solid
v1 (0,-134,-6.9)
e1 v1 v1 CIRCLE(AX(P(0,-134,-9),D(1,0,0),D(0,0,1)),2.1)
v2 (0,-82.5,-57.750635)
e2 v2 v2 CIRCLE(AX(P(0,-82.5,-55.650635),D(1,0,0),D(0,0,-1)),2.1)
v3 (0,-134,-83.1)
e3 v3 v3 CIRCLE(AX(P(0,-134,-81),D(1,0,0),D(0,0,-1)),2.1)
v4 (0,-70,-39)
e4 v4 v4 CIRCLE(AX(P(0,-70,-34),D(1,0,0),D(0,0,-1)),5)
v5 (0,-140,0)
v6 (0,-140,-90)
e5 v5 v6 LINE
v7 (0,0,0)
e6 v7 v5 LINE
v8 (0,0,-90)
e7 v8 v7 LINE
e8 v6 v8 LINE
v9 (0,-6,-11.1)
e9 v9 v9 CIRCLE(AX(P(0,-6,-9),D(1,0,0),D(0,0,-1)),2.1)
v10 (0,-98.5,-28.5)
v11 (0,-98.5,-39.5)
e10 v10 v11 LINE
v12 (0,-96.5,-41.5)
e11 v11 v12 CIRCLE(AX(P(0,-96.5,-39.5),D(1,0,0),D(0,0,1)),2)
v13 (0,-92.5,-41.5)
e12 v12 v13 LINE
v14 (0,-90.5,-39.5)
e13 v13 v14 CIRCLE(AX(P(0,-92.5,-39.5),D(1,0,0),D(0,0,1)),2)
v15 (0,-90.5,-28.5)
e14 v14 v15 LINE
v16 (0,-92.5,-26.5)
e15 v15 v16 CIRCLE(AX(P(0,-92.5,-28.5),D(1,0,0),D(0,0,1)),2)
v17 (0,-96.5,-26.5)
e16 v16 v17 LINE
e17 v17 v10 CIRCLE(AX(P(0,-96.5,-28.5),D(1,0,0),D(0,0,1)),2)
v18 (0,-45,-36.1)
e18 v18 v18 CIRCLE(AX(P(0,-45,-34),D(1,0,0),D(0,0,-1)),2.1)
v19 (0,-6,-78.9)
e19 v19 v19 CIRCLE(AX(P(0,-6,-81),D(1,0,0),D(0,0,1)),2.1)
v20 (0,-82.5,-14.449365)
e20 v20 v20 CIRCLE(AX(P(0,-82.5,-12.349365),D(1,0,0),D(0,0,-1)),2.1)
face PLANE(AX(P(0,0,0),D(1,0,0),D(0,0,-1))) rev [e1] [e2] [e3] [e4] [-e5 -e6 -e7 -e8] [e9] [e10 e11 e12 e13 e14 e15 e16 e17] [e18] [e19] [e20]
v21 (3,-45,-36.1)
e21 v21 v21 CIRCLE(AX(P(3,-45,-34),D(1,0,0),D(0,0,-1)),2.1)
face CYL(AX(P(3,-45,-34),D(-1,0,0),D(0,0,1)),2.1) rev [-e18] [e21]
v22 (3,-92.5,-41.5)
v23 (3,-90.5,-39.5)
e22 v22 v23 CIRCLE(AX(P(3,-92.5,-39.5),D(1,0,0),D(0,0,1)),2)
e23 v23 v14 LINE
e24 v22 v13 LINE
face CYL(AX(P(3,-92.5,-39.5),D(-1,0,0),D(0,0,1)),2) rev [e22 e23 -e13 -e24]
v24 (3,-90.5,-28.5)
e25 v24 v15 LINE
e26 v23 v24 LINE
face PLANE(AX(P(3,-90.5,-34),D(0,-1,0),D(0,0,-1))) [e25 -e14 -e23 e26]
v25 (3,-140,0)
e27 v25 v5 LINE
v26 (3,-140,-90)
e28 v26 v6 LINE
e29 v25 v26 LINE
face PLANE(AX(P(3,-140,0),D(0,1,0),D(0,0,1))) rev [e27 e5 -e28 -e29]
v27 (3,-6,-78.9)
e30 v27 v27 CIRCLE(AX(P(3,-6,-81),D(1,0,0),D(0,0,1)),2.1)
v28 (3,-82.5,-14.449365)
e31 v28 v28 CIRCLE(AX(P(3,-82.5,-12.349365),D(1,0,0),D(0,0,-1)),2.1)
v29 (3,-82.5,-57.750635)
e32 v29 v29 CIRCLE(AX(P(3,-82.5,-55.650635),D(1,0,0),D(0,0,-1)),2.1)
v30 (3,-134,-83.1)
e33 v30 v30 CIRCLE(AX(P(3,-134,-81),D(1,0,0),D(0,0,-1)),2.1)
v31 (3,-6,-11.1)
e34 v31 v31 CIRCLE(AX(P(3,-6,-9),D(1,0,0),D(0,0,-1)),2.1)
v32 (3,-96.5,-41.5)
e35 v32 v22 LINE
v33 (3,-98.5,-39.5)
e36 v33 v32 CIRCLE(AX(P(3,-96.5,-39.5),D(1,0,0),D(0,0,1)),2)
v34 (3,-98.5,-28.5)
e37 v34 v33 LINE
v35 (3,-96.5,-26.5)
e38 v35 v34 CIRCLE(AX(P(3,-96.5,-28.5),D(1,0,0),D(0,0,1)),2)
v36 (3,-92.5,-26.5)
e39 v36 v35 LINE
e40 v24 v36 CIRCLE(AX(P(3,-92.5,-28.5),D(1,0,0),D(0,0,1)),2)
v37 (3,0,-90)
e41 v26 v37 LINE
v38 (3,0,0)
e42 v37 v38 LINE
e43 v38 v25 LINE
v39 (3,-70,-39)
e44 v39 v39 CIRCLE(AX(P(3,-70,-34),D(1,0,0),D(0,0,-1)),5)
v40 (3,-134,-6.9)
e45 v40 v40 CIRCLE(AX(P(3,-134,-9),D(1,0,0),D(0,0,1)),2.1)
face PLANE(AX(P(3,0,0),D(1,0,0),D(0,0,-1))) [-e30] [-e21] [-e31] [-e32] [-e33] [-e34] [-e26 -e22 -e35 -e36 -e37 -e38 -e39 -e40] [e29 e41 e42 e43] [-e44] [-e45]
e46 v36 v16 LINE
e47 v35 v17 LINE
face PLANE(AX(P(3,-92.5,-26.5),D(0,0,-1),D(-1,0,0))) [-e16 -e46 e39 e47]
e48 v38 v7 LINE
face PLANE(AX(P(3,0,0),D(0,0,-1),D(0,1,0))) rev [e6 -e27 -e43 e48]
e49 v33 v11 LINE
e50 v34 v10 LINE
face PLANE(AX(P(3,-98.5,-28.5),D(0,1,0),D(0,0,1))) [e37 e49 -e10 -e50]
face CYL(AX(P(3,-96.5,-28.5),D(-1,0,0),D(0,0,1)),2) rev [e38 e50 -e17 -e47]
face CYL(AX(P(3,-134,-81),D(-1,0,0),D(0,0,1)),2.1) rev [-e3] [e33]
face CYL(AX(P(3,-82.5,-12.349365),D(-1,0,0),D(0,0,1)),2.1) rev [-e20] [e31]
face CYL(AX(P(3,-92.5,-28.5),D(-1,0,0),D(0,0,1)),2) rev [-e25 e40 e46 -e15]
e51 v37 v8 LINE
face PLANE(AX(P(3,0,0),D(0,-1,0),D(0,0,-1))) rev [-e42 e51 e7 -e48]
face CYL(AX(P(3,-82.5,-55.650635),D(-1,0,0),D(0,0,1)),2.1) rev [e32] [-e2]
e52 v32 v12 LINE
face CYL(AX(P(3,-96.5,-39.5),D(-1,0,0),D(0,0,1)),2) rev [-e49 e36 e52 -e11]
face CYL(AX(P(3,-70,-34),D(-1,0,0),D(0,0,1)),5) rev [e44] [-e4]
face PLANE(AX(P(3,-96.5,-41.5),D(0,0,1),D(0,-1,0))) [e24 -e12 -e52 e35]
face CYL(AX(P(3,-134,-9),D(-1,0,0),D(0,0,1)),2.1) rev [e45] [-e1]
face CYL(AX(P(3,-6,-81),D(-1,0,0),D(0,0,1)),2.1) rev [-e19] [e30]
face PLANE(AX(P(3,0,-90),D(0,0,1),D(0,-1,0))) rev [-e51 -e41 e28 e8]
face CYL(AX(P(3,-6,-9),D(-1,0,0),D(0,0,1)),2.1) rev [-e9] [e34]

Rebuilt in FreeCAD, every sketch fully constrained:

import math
import FreeCAD as App
import Part
import Sketcher
Q = App.Units.Quantity


def add_polygon(sketch, points):
    """Adds a closed chain of lines whose ends are joined by coincident constraints."""
    first, n = sketch.GeometryCount, len(points)
    for a, b in zip(points, points[1:] + points[:1]):
        sketch.addGeometry(Part.LineSegment(App.Vector(*a, 0), App.Vector(*b, 0)), False)
    for i in range(n):
        sketch.addConstraint(Sketcher.Constraint("Coincident", first + i, 2, first + (i + 1) % n, 1))

doc = App.newDocument("Part")
body = doc.addObject("PartDesign::Body", "Body")

# Sketch on YZ plane
sketch1 = body.newObject("Sketcher::SketchObject", "Sketch")
sketch1.AttachmentSupport = (doc.getObject("YZ_Plane"), [""])
sketch1.MapMode = "FlatFace"
add_polygon(sketch1, [(0, 0), (-140, 0), (-140, -90), (0, -90)])  # lines 0-3
sketch1.addGeometry(Part.Circle(App.Vector(-134, -9, 0), App.Vector(0, 0, 1), 2.1), False)  # 4
sketch1.addGeometry(Part.Circle(App.Vector(-82.5, -12.3, 0), App.Vector(0, 0, 1), 2.1), False)  # 5
sketch1.addGeometry(Part.ArcOfCircle(Part.Circle(App.Vector(-92.5, -28.5, 0), App.Vector(0, 0, 1), 2), math.radians(0), math.radians(90)), False)  # 6
sketch1.addGeometry(Part.LineSegment(App.Vector(-90.5, -28.5, 0), App.Vector(-90.5, -39.5, 0)), False)  # 7
sketch1.addGeometry(Part.ArcOfCircle(Part.Circle(App.Vector(-92.5, -39.5, 0), App.Vector(0, 0, 1), 2), math.radians(-90), math.radians(0)), False)  # 8
sketch1.addGeometry(Part.LineSegment(App.Vector(-92.5, -41.5, 0), App.Vector(-96.5, -41.5, 0)), False)  # 9
sketch1.addGeometry(Part.ArcOfCircle(Part.Circle(App.Vector(-96.5, -39.5, 0), App.Vector(0, 0, 1), 2), math.radians(-180), math.radians(-90)), False)  # 10
sketch1.addGeometry(Part.LineSegment(App.Vector(-98.5, -39.5, 0), App.Vector(-98.5, -28.5, 0)), False)  # 11
sketch1.addGeometry(Part.ArcOfCircle(Part.Circle(App.Vector(-96.5, -28.5, 0), App.Vector(0, 0, 1), 2), math.radians(90), math.radians(180)), False)  # 12
sketch1.addGeometry(Part.LineSegment(App.Vector(-96.5, -26.5, 0), App.Vector(-92.5, -26.5, 0)), False)  # 13
sketch1.addGeometry(Part.Circle(App.Vector(-134, -81, 0), App.Vector(0, 0, 1), 2.1), False)  # 14
sketch1.addGeometry(Part.Circle(App.Vector(-82.5, -55.7, 0), App.Vector(0, 0, 1), 2.1), False)  # 15
sketch1.addGeometry(Part.Circle(App.Vector(-70, -34, 0), App.Vector(0, 0, 1), 5), False)  # 16
sketch1.addGeometry(Part.Circle(App.Vector(-45, -34, 0), App.Vector(0, 0, 1), 2.1), False)  # 17
sketch1.addGeometry(Part.Circle(App.Vector(-6, -9, 0), App.Vector(0, 0, 1), 2.1), False)  # 18
sketch1.addGeometry(Part.Circle(App.Vector(-6, -81, 0), App.Vector(0, 0, 1), 2.1), False)  # 19
sketch1.addConstraint([
    Sketcher.Constraint("Tangent", 6, 1, 7, 1),
    Sketcher.Constraint("Tangent", 7, 2, 8, 2),
    Sketcher.Constraint("Tangent", 8, 1, 9, 1),
    Sketcher.Constraint("Tangent", 9, 2, 10, 2),
    Sketcher.Constraint("Tangent", 10, 1, 11, 1),
    Sketcher.Constraint("Tangent", 11, 2, 12, 2),
    Sketcher.Constraint("Tangent", 12, 1, 13, 1),
    Sketcher.Constraint("Tangent", 13, 2, 6, 2),
    Sketcher.Constraint("Horizontal", 0),
    Sketcher.Constraint("Vertical", 1),
    Sketcher.Constraint("Horizontal", 2),
    Sketcher.Constraint("Vertical", 3),
    Sketcher.Constraint("Vertical", 7),
    Sketcher.Constraint("Horizontal", 9),
    Sketcher.Constraint("Vertical", 11),
    Sketcher.Constraint("Horizontal", 13),
    Sketcher.Constraint("Coincident", 3, 2, -1, 1),
    Sketcher.Constraint("Equal", 4, 5),
    Sketcher.Constraint("Equal", 6, 8),
    Sketcher.Constraint("Equal", 8, 10),
    Sketcher.Constraint("Equal", 10, 12),
    Sketcher.Constraint("Equal", 5, 14),
    Sketcher.Constraint("Equal", 14, 15),
    Sketcher.Constraint("Equal", 15, 17),
    Sketcher.Constraint("Equal", 17, 18),
    Sketcher.Constraint("Equal", 18, 19),
    Sketcher.Constraint("Horizontal", 16, 3, 17, 3),
    Sketcher.Constraint("Horizontal", 4, 3, 18, 3),
    Sketcher.Constraint("Horizontal", 14, 3, 19, 3),
    Sketcher.Constraint("Vertical", 4, 3, 14, 3),
    Sketcher.Constraint("Vertical", 5, 3, 15, 3),
    Sketcher.Constraint("Vertical", 18, 3, 19, 3),
    Sketcher.Constraint("Diameter", 16, Q("10 mm")),
    Sketcher.Constraint("Radius", 6, Q("2 mm")),
    Sketcher.Constraint("Diameter", 4, Q("4.2 mm")),
    Sketcher.Constraint("DistanceX", 0, 2, 0, 1, Q("140 mm")),
    Sketcher.Constraint("DistanceX", 9, 2, 9, 1, Q("4 mm")),
    Sketcher.Constraint("DistanceY", 1, 2, 1, 1, Q("90 mm")),
    Sketcher.Constraint("DistanceY", 7, 2, 7, 1, Q("11 mm")),
    Sketcher.Constraint("DistanceX", 4, 3, -1, 1, Q("134 mm")),
    Sketcher.Constraint("DistanceY", 4, 3, -1, 1, Q("9 mm")),
    Sketcher.Constraint("DistanceY", 14, 3, -1, 1, Q("81 mm")),
    Sketcher.Constraint("DistanceX", 16, 3, -1, 1, Q("70 mm")),
    Sketcher.Constraint("DistanceY", 16, 3, -1, 1, Q("34 mm")),
    Sketcher.Constraint("DistanceX", 17, 3, -1, 1, Q("45 mm")),
    Sketcher.Constraint("DistanceX", 18, 3, -1, 1, Q("6 mm")),
    Sketcher.Constraint("DistanceX", 6, 3, 5, 3, Q("10 mm")),
    Sketcher.Constraint("DistanceX", 5, 3, -1, 1, Q("82.5 mm")),
    Sketcher.Constraint("DistanceY", 6, 3, -1, 1, Q("28.5 mm")),
    Sketcher.Constraint("DistanceY", 15, 3, 5, 3, Q("43.30127 mm")),
    Sketcher.Constraint("DistanceY", 5, 3, -1, 1, Q("12.349365 mm")),
])
pad1 = body.newObject("PartDesign::Pad", "Pad")
pad1.Profile = sketch1
pad1.Length = 3

doc.recompute()
